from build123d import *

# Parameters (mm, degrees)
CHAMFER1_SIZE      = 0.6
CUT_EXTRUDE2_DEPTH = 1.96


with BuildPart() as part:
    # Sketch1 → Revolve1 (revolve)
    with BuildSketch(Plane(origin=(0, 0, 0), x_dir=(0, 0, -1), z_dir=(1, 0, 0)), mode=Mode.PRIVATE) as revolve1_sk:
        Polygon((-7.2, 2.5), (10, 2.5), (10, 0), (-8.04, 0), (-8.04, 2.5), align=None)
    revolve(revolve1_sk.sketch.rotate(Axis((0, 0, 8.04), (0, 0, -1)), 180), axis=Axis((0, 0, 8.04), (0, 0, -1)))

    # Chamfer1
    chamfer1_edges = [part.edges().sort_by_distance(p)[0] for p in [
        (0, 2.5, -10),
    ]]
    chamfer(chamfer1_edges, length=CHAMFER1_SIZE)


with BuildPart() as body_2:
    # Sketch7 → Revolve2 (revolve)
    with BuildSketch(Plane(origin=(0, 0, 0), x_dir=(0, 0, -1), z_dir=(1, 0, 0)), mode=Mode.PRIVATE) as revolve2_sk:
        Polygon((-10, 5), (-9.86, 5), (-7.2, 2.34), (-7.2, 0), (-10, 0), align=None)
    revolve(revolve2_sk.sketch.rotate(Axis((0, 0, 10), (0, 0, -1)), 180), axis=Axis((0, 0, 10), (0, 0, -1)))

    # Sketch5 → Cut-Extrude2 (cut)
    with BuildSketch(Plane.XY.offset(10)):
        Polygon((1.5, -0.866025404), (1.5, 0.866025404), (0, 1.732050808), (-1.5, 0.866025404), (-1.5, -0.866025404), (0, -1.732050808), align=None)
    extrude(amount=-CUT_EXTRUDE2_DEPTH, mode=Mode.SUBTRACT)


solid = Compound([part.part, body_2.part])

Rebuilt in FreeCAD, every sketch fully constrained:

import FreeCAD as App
import Part
import Sketcher
from FreeCAD import Vector
Q = App.Units.Quantity


def edges_at(feature, points):
    """Names of the edges that pass closest to the given points."""
    edges = feature.Shape.Edges
    near = lambda p: min(range(len(edges)), key=lambda i: edges[i].distToShape(Part.Vertex(*p))[0])
    return sorted({f"Edge{near(p) + 1}" for p in points})

doc = App.newDocument("Part")
params = doc.addObject("Spreadsheet::Sheet", "Params")
for row, (alias, value) in enumerate([
    ("sketch1_width", "2.5 mm"),
    ("sketch1_height", "18.04 mm"),
    ("revolution_angle", "360 deg"),
    ("chamfer_size", "0.6 mm"),
    ("sketch2_width", "5 mm"),
    ("sketch2_height", "2.8 mm"),
    ("sketch2_width2", "2.34 mm"),
    ("revolution2_angle", "360 deg"),
    ("pocket1_length", "1.96 mm"),
], start=1):
    params.set(f"A{row}", alias)
    params.set(f"B{row}", "=" + value)
    params.setAlias(f"B{row}", alias)

body = doc.addObject("PartDesign::Body", "Body")

# Sketch on YZ plane
sketch1 = body.newObject("Sketcher::SketchObject", "Sketch")
sketch1.AttachmentSupport = (doc.getObject("YZ_Plane"), [""])
sketch1.MapMode = "FlatFace"
sketch1.addGeometry([
    Part.LineSegment(Vector(2.5, -10, 0), Vector(2.5, 8, 0)),
    Part.LineSegment(Vector(2.5, 8, 0), Vector(0, 8, 0)),
    Part.LineSegment(Vector(0, 8, 0), Vector(0, -10, 0)),
    Part.LineSegment(Vector(0, -10, 0), Vector(2.5, -10, 0)),
], False)
sketch1.addConstraint([
    Sketcher.Constraint("Coincident", 0, 2, 1, 1),
    Sketcher.Constraint("Coincident", 1, 2, 2, 1),
    Sketcher.Constraint("Coincident", 2, 2, 3, 1),
    Sketcher.Constraint("Coincident", 3, 2, 0, 1),
    Sketcher.Constraint("Vertical", 0),
    Sketcher.Constraint("Horizontal", 1),
    Sketcher.Constraint("Vertical", 2),
    Sketcher.Constraint("Horizontal", 3),
    Sketcher.Constraint("PointOnObject", 1, 2, -2),
    Sketcher.Constraint("DistanceX", 1, 2, 1, 1, 2.5),
    Sketcher.Constraint("DistanceY", 2, 2, -1, 1, 10.0),
    Sketcher.Constraint("DistanceY", 0, 1, 0, 2, 18.04),
])
sketch1.setExpression("Constraints[9]", "Params.sketch1_width")
sketch1.setExpression("Constraints[11]", "Params.sketch1_height")
revolution = body.newObject("PartDesign::Revolution", "Revolution")
revolution.Profile = sketch1
revolution.ReferenceAxis = (sketch1, ["V_Axis"])
revolution.setExpression("Angle", "Params.revolution_angle")
doc.recompute()

chamfer = body.newObject("PartDesign::Chamfer", "Chamfer")
chamfer.Base = (revolution, edges_at(revolution, [(0, 2.5, -10)]))
chamfer.setExpression("Size", "Params.chamfer_size")
body2 = doc.addObject("PartDesign::Body", "Body001")

# Sketch on YZ plane
sketch2 = body2.newObject("Sketcher::SketchObject", "Sketch001")
sketch2.AttachmentSupport = (doc.getObject("YZ_Plane001"), [""])
sketch2.MapMode = "FlatFace"
sketch2.addGeometry([
    Part.LineSegment(Vector(5, 9.86, 0), Vector(5, 10, 0)),  # 0
    Part.LineSegment(Vector(5, 10, 0), Vector(0, 10, 0)),  # 1
    Part.LineSegment(Vector(0, 10, 0), Vector(0, 7.2, 0)),  # 2
    Part.LineSegment(Vector(0, 7.2, 0), Vector(2.34, 7.2, 0)),  # 3
    Part.LineSegment(Vector(2.34, 7.2, 0), Vector(5, 9.86, 0)),  # 4
], False)
sketch2.addConstraint([
    Sketcher.Constraint("Coincident", 0, 2, 1, 1),
    Sketcher.Constraint("Coincident", 1, 2, 2, 1),
    Sketcher.Constraint("Coincident", 2, 2, 3, 1),
    Sketcher.Constraint("Coincident", 3, 2, 4, 1),
    Sketcher.Constraint("Coincident", 4, 2, 0, 1),
    Sketcher.Constraint("Vertical", 0),
    Sketcher.Constraint("Horizontal", 1),
    Sketcher.Constraint("Vertical", 2),
    Sketcher.Constraint("Horizontal", 3),
    Sketcher.Constraint("PointOnObject", 1, 2, -2),
    Sketcher.Constraint("DistanceX", 1, 2, 1, 1, 5.0),
    Sketcher.Constraint("Angle", 4, Q("45 deg")),
    Sketcher.Constraint("DistanceY", 2, 2, 2, 1, 2.8),
    Sketcher.Constraint("DistanceY", -1, 1, 0, 2, 10.0),
    Sketcher.Constraint("DistanceX", 3, 1, 3, 2, 2.34),
])
sketch2.setExpression("Constraints[10]", "Params.sketch2_width")
sketch2.setExpression("Constraints[12]", "Params.sketch2_height")
sketch2.setExpression("Constraints[14]", "Params.sketch2_width2")
revolution2 = body2.newObject("PartDesign::Revolution", "Revolution001")
revolution2.Profile = sketch2
revolution2.ReferenceAxis = (sketch2, ["V_Axis"])
revolution2.setExpression("Angle", "Params.revolution2_angle")

# Sketch on XY plane
sketch3 = body2.newObject("Sketcher::SketchObject", "Sketch002")
sketch3.AttachmentSupport = (doc.getObject("XY_Plane001"), [""])
sketch3.MapMode = "FlatFace"
sketch3.AttachmentOffset = App.Placement(Vector(0, 0, 10), App.Rotation())
sketch3.addGeometry([
    Part.LineSegment(Vector(1.5, -0.9, 0), Vector(1.5, 0.9, 0)),  # 0
    Part.LineSegment(Vector(1.5, 0.9, 0), Vector(0, 1.7, 0)),  # 1
    Part.LineSegment(Vector(0, 1.7, 0), Vector(-1.5, 0.9, 0)),  # 2
    Part.LineSegment(Vector(-1.5, 0.9, 0), Vector(-1.5, -0.9, 0)),  # 3
    Part.LineSegment(Vector(-1.5, -0.9, 0), Vector(0, -1.7, 0)),  # 4
    Part.LineSegment(Vector(0, -1.7, 0), Vector(1.5, -0.9, 0)),  # 5
], False)
sketch3.addConstraint([
    Sketcher.Constraint("Coincident", 0, 2, 1, 1),
    Sketcher.Constraint("Coincident", 1, 2, 2, 1),
    Sketcher.Constraint("Coincident", 2, 2, 3, 1),
    Sketcher.Constraint("Coincident", 3, 2, 4, 1),
    Sketcher.Constraint("Coincident", 4, 2, 5, 1),
    Sketcher.Constraint("Coincident", 5, 2, 0, 1),
    Sketcher.Constraint("Vertical", 0),
    Sketcher.Constraint("Vertical", 3),
    Sketcher.Constraint("Symmetric", 0, 2, 3, 2, -1, 1),
    Sketcher.Constraint("Symmetric", 1, 2, 4, 2, -1, 1),
    Sketcher.Constraint("PointOnObject", 1, 2, -2),
    Sketcher.Constraint("Parallel", 2, 5),
    Sketcher.Constraint("Horizontal", 0, 2, 2, 2),
    Sketcher.Constraint("Angle", 1, Q("150 deg")),
    Sketcher.Constraint("DistanceX", 2, 2, 0, 2, 3.0),
    Sketcher.Constraint("DistanceY", 0, 1, 0, 2, 1.732051),
])
pocket1 = body2.newObject("PartDesign::Pocket", "Pocket")
pocket1.Profile = sketch3
pocket1.setExpression("Length", "Params.pocket1_length")

doc.recompute()
